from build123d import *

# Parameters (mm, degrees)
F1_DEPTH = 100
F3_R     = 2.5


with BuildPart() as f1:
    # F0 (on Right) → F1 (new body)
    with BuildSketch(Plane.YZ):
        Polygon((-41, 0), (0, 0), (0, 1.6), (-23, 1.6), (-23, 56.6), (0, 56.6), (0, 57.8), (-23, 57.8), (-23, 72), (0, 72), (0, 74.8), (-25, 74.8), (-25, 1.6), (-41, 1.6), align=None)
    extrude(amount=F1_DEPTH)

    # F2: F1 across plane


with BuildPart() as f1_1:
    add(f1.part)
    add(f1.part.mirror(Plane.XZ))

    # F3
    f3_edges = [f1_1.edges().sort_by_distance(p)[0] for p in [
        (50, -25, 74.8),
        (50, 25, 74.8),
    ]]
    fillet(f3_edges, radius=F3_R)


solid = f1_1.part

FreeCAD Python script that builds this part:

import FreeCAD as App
import Part
import Sketcher

V = App.Vector
Q = App.Units.Quantity


def edges_at(feature, points):
    """Names of the edges that pass closest to the given points."""
    edges = feature.Shape.Edges
    near = lambda p: min(range(len(edges)), key=lambda i: edges[i].distToShape(Part.Vertex(*p))[0])
    return sorted({f"Edge{near(p) + 1}" for p in points})


def add_polygon(sketch, points):
    """Adds a closed chain of lines whose ends are joined by coincident constraints."""
    first, n = sketch.GeometryCount, len(points)
    for a, b in zip(points, points[1:] + points[:1]):
        sketch.addGeometry(Part.LineSegment(App.Vector(*a, 0), App.Vector(*b, 0)), False)
    for i in range(n):
        sketch.addConstraint(Sketcher.Constraint("Coincident", first + i, 2, first + (i + 1) % n, 1))

doc = App.newDocument("Part")
params = doc.addObject("Spreadsheet::Sheet", "Params")
for row, (alias, value) in enumerate([
    ("sketch1_width", "41 mm"),
    ("sketch1_width2", "23 mm"),
    ("sketch1_width3", "25 mm"),
    ("sketch1_height", "55 mm"),
    ("sketch1_height2", "1.6 mm"),
    ("pad1_length", "100 mm"),
    ("fillet_radius", "2.5 mm"),
], start=1):
    params.set(f"A{row}", alias)
    params.set(f"B{row}", "=" + value)
    params.setAlias(f"B{row}", alias)

body = doc.addObject("PartDesign::Body", "Body")

sketch1 = body.newObject("Sketcher::SketchObject", "Sketch")
sketch1.AttachmentSupport = (doc.getObject("YZ_Plane"), [""])
sketch1.MapMode = "FlatFace"
add_polygon(sketch1, [(-41, 0), (0, 0), (0, 1.6), (-23, 1.6), (-23, 56.6), (0, 56.6), (0, 57.8), (-23, 57.8), (-23, 72), (0, 72), (0, 74.8), (-25, 74.8), (-25, 1.6), (-41, 1.6)])
sketch1.addConstraint([
    Sketcher.Constraint("Horizontal", 0),
    Sketcher.Constraint("Vertical", 1),
    Sketcher.Constraint("Horizontal", 2),
    Sketcher.Constraint("Vertical", 3),
    Sketcher.Constraint("Horizontal", 4),
    Sketcher.Constraint("Vertical", 5),
    Sketcher.Constraint("Horizontal", 6),
    Sketcher.Constraint("Vertical", 7),
    Sketcher.Constraint("Horizontal", 8),
    Sketcher.Constraint("Vertical", 9),
    Sketcher.Constraint("Horizontal", 10),
    Sketcher.Constraint("Vertical", 11),
    Sketcher.Constraint("Horizontal", 12),
    Sketcher.Constraint("Vertical", 13),
    Sketcher.Constraint("Coincident", 0, 2, -1, 1),
    Sketcher.Constraint("PointOnObject", 4, 2, -2),
    Sketcher.Constraint("PointOnObject", 8, 2, -2),
    Sketcher.Constraint("Horizontal", 2, 2, 11, 2),
    Sketcher.Constraint("Vertical", 3, 2, 6, 2),
    Sketcher.Constraint("DistanceX", 0, 1, 0, 2, Q("41 mm")),
    Sketcher.Constraint("DistanceX", 2, 2, 2, 1, Q("23 mm")),
    Sketcher.Constraint("DistanceX", 10, 2, 10, 1, Q("25 mm")),
    Sketcher.Constraint("DistanceY", 3, 1, 3, 2, Q("55 mm")),
    Sketcher.Constraint("DistanceY", 1, 1, 1, 2, Q("1.6 mm")),
    Sketcher.Constraint("DistanceY", 5, 1, 5, 2, Q("1.2 mm")),
    Sketcher.Constraint("DistanceY", 7, 1, 7, 2, Q("14.2 mm")),
    Sketcher.Constraint("DistanceY", 9, 1, 9, 2, Q("2.8 mm")),
])
sketch1.setExpression("Constraints[33]", "Params.sketch1_width")
sketch1.setExpression("Constraints[34]", "Params.sketch1_width2")
sketch1.setExpression("Constraints[35]", "Params.sketch1_width3")
sketch1.setExpression("Constraints[36]", "Params.sketch1_height")
sketch1.setExpression("Constraints[37]", "Params.sketch1_height2")
pad1 = body.newObject("PartDesign::Pad", "Pad")
pad1.Profile = sketch1
pad1.setExpression("Length", "Params.pad1_length")
body2 = doc.addObject("PartDesign::Body", "Body001")
doc.recompute()

body2.BaseFeature = body
doc.recompute()

mirroring = doc.addObject("Part::Mirroring", "Mirroring")
mirroring.Source = body
mirroring.Base = V(0, 0, 0)
mirroring.Normal = V(0, -1, 0)
body3 = doc.addObject("PartDesign::Body", "Body002")
body3.BaseFeature = mirroring
boolean = body2.newObject("PartDesign::Boolean", "Boolean")
boolean.Type = "Fuse"
boolean.addObjects([body3])
doc.recompute()

fillet = body2.newObject("PartDesign::Fillet", "Fillet")
fillet.Base = (boolean, edges_at(boolean, [(50, -25, 74.8), (50, 25, 74.8)]))
fillet.setExpression("Radius", "Params.fillet_radius")
mirroring.Visibility = False

doc.recompute()
